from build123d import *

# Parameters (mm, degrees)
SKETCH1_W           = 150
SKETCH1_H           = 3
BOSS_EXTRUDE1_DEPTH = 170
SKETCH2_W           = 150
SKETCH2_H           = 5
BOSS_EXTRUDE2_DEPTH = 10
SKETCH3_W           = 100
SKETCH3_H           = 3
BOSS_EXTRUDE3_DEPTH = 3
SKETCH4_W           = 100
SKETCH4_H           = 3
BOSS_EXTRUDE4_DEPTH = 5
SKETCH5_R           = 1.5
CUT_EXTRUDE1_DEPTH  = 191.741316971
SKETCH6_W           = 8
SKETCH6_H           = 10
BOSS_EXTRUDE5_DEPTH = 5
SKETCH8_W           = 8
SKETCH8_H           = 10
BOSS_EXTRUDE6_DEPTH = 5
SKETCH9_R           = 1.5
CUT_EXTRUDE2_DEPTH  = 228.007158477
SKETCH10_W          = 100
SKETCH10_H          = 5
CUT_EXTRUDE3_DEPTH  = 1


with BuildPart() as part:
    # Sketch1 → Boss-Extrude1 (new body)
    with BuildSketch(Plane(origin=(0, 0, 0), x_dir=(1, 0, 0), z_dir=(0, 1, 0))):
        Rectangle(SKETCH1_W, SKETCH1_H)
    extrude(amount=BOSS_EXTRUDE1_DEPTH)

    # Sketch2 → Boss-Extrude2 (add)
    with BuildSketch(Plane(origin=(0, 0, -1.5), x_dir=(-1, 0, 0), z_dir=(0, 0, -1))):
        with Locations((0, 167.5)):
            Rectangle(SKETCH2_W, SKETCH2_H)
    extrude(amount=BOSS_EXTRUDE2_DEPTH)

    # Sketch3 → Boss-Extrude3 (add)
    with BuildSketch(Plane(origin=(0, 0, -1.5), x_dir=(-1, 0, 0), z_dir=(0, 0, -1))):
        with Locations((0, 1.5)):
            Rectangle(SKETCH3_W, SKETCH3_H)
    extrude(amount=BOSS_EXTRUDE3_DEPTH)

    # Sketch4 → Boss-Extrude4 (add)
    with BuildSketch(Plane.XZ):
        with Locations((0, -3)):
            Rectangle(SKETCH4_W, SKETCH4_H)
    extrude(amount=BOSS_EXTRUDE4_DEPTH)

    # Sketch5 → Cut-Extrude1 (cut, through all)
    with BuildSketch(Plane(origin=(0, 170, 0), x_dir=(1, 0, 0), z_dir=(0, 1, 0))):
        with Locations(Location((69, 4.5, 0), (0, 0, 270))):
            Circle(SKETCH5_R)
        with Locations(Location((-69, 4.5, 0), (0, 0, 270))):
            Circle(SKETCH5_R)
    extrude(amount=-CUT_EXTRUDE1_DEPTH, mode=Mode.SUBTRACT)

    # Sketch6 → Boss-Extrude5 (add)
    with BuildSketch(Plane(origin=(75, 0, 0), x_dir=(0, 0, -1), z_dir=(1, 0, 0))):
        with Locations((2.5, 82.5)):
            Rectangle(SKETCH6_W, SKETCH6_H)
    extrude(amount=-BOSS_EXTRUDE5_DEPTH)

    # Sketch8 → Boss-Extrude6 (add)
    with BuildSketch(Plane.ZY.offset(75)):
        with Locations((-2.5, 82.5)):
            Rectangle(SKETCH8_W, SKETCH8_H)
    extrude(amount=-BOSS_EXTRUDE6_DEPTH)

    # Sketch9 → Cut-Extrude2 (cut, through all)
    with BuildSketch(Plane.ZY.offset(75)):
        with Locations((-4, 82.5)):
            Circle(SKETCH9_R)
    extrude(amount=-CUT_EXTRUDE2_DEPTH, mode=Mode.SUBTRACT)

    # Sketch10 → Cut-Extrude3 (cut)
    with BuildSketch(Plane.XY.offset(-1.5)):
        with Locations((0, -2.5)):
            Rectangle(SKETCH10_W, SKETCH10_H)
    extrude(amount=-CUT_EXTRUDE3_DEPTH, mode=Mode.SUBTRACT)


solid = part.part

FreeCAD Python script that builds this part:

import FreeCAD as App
import Part
import Sketcher
from FreeCAD import Vector
Q = App.Units.Quantity

doc = App.newDocument("Part")
body = doc.addObject("PartDesign::Body", "Body")

sketch1 = doc.addObject("Sketcher::SketchObject", "Sketch")
body.addObject(sketch1)
sketch1.AttachmentSupport = (doc.XZ_Plane, [""])
sketch1.MapMode = "FlatFace"
sketch1.addGeometry([
    Part.LineSegment(Vector(-75, -1.5, 0), Vector(-75, 1.5, 0)),
    Part.LineSegment(Vector(-75, 1.5, 0), Vector(75, 1.5, 0)),
    Part.LineSegment(Vector(75, 1.5, 0), Vector(75, -1.5, 0)),
    Part.LineSegment(Vector(75, -1.5, 0), Vector(-75, -1.5, 0)),
], False)
sketch1.addConstraint([
    Sketcher.Constraint("Coincident", 0, 2, 1, 1),
    Sketcher.Constraint("Coincident", 1, 2, 2, 1),
    Sketcher.Constraint("Coincident", 2, 2, 3, 1),
    Sketcher.Constraint("Coincident", 3, 2, 0, 1),
    Sketcher.Constraint("Vertical", 0),
    Sketcher.Constraint("Horizontal", 1),
    Sketcher.Constraint("Vertical", 2),
    Sketcher.Constraint("Horizontal", 3),
    Sketcher.Constraint("Symmetric", 0, 2, 2, 2, -1, 1),
    Sketcher.Constraint("DistanceX", 1, 1, 1, 2, Q("150 mm")),
    Sketcher.Constraint("DistanceY", 0, 1, 0, 2, Q("3 mm")),
])
pad1 = doc.addObject("PartDesign::Pad", "Pad")
body.addObject(pad1)
pad1.Profile = sketch1
pad1.Length = 170
pad1.Reversed = True

sketch2 = doc.addObject("Sketcher::SketchObject", "Sketch001")
body.addObject(sketch2)
sketch2.AttachmentSupport = (doc.XY_Plane, [""])
sketch2.MapMode = "FlatFace"
sketch2.AttachmentOffset = App.Placement(Vector(0, 0, -1.5), App.Rotation())
sketch2.addGeometry([
    Part.LineSegment(Vector(75, 170, 0), Vector(75, 165, 0)),
    Part.LineSegment(Vector(75, 165, 0), Vector(-75, 165, 0)),
    Part.LineSegment(Vector(-75, 165, 0), Vector(-75, 170, 0)),
    Part.LineSegment(Vector(-75, 170, 0), Vector(75, 170, 0)),
], False)
sketch2.addConstraint([
    Sketcher.Constraint("Coincident", 0, 2, 1, 1),
    Sketcher.Constraint("Coincident", 1, 2, 2, 1),
    Sketcher.Constraint("Coincident", 2, 2, 3, 1),
    Sketcher.Constraint("Coincident", 3, 2, 0, 1),
    Sketcher.Constraint("Vertical", 0),
    Sketcher.Constraint("Horizontal", 1),
    Sketcher.Constraint("Vertical", 2),
    Sketcher.Constraint("Horizontal", 3),
    Sketcher.Constraint("DistanceX", 1, 2, 1, 1, Q("150 mm")),
    Sketcher.Constraint("DistanceY", 0, 2, 0, 1, Q("5 mm")),
    Sketcher.Constraint("DistanceX", -1, 1, 0, 2, Q("75 mm")),
    Sketcher.Constraint("DistanceY", -1, 1, 0, 2, Q("165 mm")),
])
pad2 = doc.addObject("PartDesign::Pad", "Pad001")
body.addObject(pad2)
pad2.Profile = sketch2
pad2.Length = 10
pad2.Reversed = True

sketch3 = doc.addObject("Sketcher::SketchObject", "Sketch002")
body.addObject(sketch3)
sketch3.AttachmentSupport = (doc.XY_Plane, [""])
sketch3.MapMode = "FlatFace"
sketch3.AttachmentOffset = App.Placement(Vector(0, 0, -1.5), App.Rotation())
sketch3.addGeometry([
    Part.LineSegment(Vector(50, 3, 0), Vector(50, 0, 0)),
    Part.LineSegment(Vector(50, 0, 0), Vector(-50, 0, 0)),
    Part.LineSegment(Vector(-50, 0, 0), Vector(-50, 3, 0)),
    Part.LineSegment(Vector(-50, 3, 0), Vector(50, 3, 0)),
], False)
sketch3.addConstraint([
    Sketcher.Constraint("Coincident", 0, 2, 1, 1),
    Sketcher.Constraint("Coincident", 1, 2, 2, 1),
    Sketcher.Constraint("Coincident", 2, 2, 3, 1),
    Sketcher.Constraint("Coincident", 3, 2, 0, 1),
    Sketcher.Constraint("Vertical", 0),
    Sketcher.Constraint("Horizontal", 1),
    Sketcher.Constraint("Vertical", 2),
    Sketcher.Constraint("Horizontal", 3),
    Sketcher.Constraint("Symmetric", 0, 2, 1, 2, -1, 1),
    Sketcher.Constraint("DistanceX", 1, 2, 1, 1, Q("100 mm")),
    Sketcher.Constraint("DistanceY", 0, 2, 0, 1, Q("3 mm")),
])
pad3 = doc.addObject("PartDesign::Pad", "Pad002")
body.addObject(pad3)
pad3.Profile = sketch3
pad3.Length = 3
pad3.Reversed = True

sketch4 = doc.addObject("Sketcher::SketchObject", "Sketch003")
body.addObject(sketch4)
sketch4.AttachmentSupport = (doc.XZ_Plane, [""])
sketch4.MapMode = "FlatFace"
sketch4.addGeometry([
    Part.LineSegment(Vector(-50, -1.5, 0), Vector(-50, -4.5, 0)),
    Part.LineSegment(Vector(-50, -4.5, 0), Vector(50, -4.5, 0)),
    Part.LineSegment(Vector(50, -4.5, 0), Vector(50, -1.5, 0)),
    Part.LineSegment(Vector(50, -1.5, 0), Vector(-50, -1.5, 0)),
], False)
sketch4.addConstraint([
    Sketcher.Constraint("Coincident", 0, 2, 1, 1),
    Sketcher.Constraint("Coincident", 1, 2, 2, 1),
    Sketcher.Constraint("Coincident", 2, 2, 3, 1),
    Sketcher.Constraint("Coincident", 3, 2, 0, 1),
    Sketcher.Constraint("Vertical", 0),
    Sketcher.Constraint("Horizontal", 1),
    Sketcher.Constraint("Vertical", 2),
    Sketcher.Constraint("Horizontal", 3),
    Sketcher.Constraint("DistanceX", 1, 1, 1, 2, Q("100 mm")),
    Sketcher.Constraint("DistanceY", 0, 2, 0, 1, Q("3 mm")),
    Sketcher.Constraint("DistanceX", 0, 2, -1, 1, Q("50 mm")),
    Sketcher.Constraint("DistanceY", 0, 2, -1, 1, Q("4.5 mm")),
])
pad4 = doc.addObject("PartDesign::Pad", "Pad003")
body.addObject(pad4)
pad4.Profile = sketch4
pad4.Length = 5

sketch5 = doc.addObject("Sketcher::SketchObject", "Sketch004")
body.addObject(sketch5)
sketch5.AttachmentSupport = (doc.XZ_Plane, [""])
sketch5.MapMode = "FlatFace"
sketch5.AttachmentOffset = App.Placement(Vector(0, 0, -170), App.Rotation())
sketch5.addGeometry([
    Part.Circle(Vector(69, -4.5, 0), Vector(0, 0, 1), 1.5),
    Part.Circle(Vector(-69, -4.5, 0), Vector(0, 0, 1), 1.5),
], False)
sketch5.addConstraint([
    Sketcher.Constraint("Equal", 0, 1),
    Sketcher.Constraint("Symmetric", 0, 3, 1, 3, -2),
    Sketcher.Constraint("Diameter", 0, Q("3 mm")),
    Sketcher.Constraint("DistanceX", -1, 1, 0, 3, Q("69 mm")),
    Sketcher.Constraint("DistanceY", 0, 3, -1, 1, Q("4.5 mm")),
])
pocket1 = doc.addObject("PartDesign::Pocket", "Pocket")
body.addObject(pocket1)
pocket1.Profile = sketch5
pocket1.Type = "ThroughAll"
pocket1.Reversed = True

sketch6 = doc.addObject("Sketcher::SketchObject", "Sketch005")
body.addObject(sketch6)
sketch6.AttachmentSupport = (doc.YZ_Plane, [""])
sketch6.MapMode = "FlatFace"
sketch6.AttachmentOffset = App.Placement(Vector(0, 0, 75), App.Rotation())
sketch6.addGeometry([
    Part.LineSegment(Vector(88, 2, 0), Vector(78, 2, 0)),
    Part.LineSegment(Vector(78, 2, 0), Vector(78, -6, 0)),
    Part.LineSegment(Vector(78, -6, 0), Vector(88, -6, 0)),
    Part.LineSegment(Vector(88, -6, 0), Vector(88, 2, 0)),
], False)
sketch6.addConstraint([
    Sketcher.Constraint("Coincident", 0, 2, 1, 1),
    Sketcher.Constraint("Coincident", 1, 2, 2, 1),
    Sketcher.Constraint("Coincident", 2, 2, 3, 1),
    Sketcher.Constraint("Coincident", 3, 2, 0, 1),
    Sketcher.Constraint("Horizontal", 0),
    Sketcher.Constraint("Vertical", 1),
    Sketcher.Constraint("Horizontal", 2),
    Sketcher.Constraint("Vertical", 3),
    Sketcher.Constraint("DistanceX", 0, 2, 0, 1, Q("10 mm")),
    Sketcher.Constraint("DistanceY", 1, 2, 1, 1, Q("8 mm")),
    Sketcher.Constraint("DistanceX", -1, 1, 0, 2, Q("77.5 mm")),
    Sketcher.Constraint("DistanceY", -1, 1, 0, 2, Q("1.5 mm")),
])
pad5 = doc.addObject("PartDesign::Pad", "Pad004")
body.addObject(pad5)
pad5.Profile = sketch6
pad5.Length = 5
pad5.Reversed = True

sketch7 = doc.addObject("Sketcher::SketchObject", "Sketch006")
body.addObject(sketch7)
sketch7.AttachmentSupport = (doc.YZ_Plane, [""])
sketch7.MapMode = "FlatFace"
sketch7.AttachmentOffset = App.Placement(Vector(0, 0, -75), App.Rotation())
sketch7.addGeometry([
    Part.LineSegment(Vector(88, -6, 0), Vector(78, -6, 0)),
    Part.LineSegment(Vector(78, -6, 0), Vector(78, 2, 0)),
    Part.LineSegment(Vector(78, 2, 0), Vector(88, 2, 0)),
    Part.LineSegment(Vector(88, 2, 0), Vector(88, -6, 0)),
], False)
sketch7.addConstraint([
    Sketcher.Constraint("Coincident", 0, 2, 1, 1),
    Sketcher.Constraint("Coincident", 1, 2, 2, 1),
    Sketcher.Constraint("Coincident", 2, 2, 3, 1),
    Sketcher.Constraint("Coincident", 3, 2, 0, 1),
    Sketcher.Constraint("Horizontal", 0),
    Sketcher.Constraint("Vertical", 1),
    Sketcher.Constraint("Horizontal", 2),
    Sketcher.Constraint("Vertical", 3),
    Sketcher.Constraint("DistanceX", 0, 2, 0, 1, Q("10 mm")),
    Sketcher.Constraint("DistanceY", 1, 1, 1, 2, Q("8 mm")),
    Sketcher.Constraint("DistanceX", -1, 1, 0, 2, Q("77.5 mm")),
    Sketcher.Constraint("DistanceY", 0, 2, -1, 1, Q("6.5 mm")),
])
pad6 = doc.addObject("PartDesign::Pad", "Pad005")
body.addObject(pad6)
pad6.Profile = sketch7
pad6.Length = 5

sketch8 = doc.addObject("Sketcher::SketchObject", "Sketch007")
body.addObject(sketch8)
sketch8.AttachmentSupport = (doc.YZ_Plane, [""])
sketch8.MapMode = "FlatFace"
sketch8.AttachmentOffset = App.Placement(Vector(0, 0, -75), App.Rotation())
sketch8.addGeometry(Part.Circle(Vector(82.5, -4, 0), Vector(0, 0, 1), 1.5), False)
sketch8.addConstraint([
    Sketcher.Constraint("Diameter", 0, Q("3 mm")),
    Sketcher.Constraint("DistanceY", 0, 3, -1, 1, Q("4 mm")),
    Sketcher.Constraint("DistanceX", -1, 1, 0, 3, Q("82.5 mm")),
])
pocket2 = doc.addObject("PartDesign::Pocket", "Pocket001")
body.addObject(pocket2)
pocket2.Profile = sketch8
pocket2.Type = "ThroughAll"
pocket2.Reversed = True

sketch9 = doc.addObject("Sketcher::SketchObject", "Sketch008")
body.addObject(sketch9)
sketch9.AttachmentSupport = (doc.XY_Plane, [""])
sketch9.MapMode = "FlatFace"
sketch9.AttachmentOffset = App.Placement(Vector(0, 0, -1.5), App.Rotation())
sketch9.addGeometry([
    Part.LineSegment(Vector(-50, 0, 0), Vector(-50, -5, 0)),
    Part.LineSegment(Vector(-50, -5, 0), Vector(50, -5, 0)),
    Part.LineSegment(Vector(50, -5, 0), Vector(50, 0, 0)),
    Part.LineSegment(Vector(50, 0, 0), Vector(-50, 0, 0)),
], False)
sketch9.addConstraint([
    Sketcher.Constraint("Coincident", 0, 2, 1, 1),
    Sketcher.Constraint("Coincident", 1, 2, 2, 1),
    Sketcher.Constraint("Coincident", 2, 2, 3, 1),
    Sketcher.Constraint("Coincident", 3, 2, 0, 1),
    Sketcher.Constraint("Vertical", 0),
    Sketcher.Constraint("Horizontal", 1),
    Sketcher.Constraint("Vertical", 2),
    Sketcher.Constraint("Horizontal", 3),
    Sketcher.Constraint("Symmetric", 2, 2, 3, 2, -1, 1),
    Sketcher.Constraint("DistanceX", 1, 1, 1, 2, Q("100 mm")),
    Sketcher.Constraint("DistanceY", 0, 2, 0, 1, Q("5 mm")),
])
pocket3 = doc.addObject("PartDesign::Pocket", "Pocket002")
body.addObject(pocket3)
pocket3.Profile = sketch9
pocket3.Length = 1

doc.recompute()
